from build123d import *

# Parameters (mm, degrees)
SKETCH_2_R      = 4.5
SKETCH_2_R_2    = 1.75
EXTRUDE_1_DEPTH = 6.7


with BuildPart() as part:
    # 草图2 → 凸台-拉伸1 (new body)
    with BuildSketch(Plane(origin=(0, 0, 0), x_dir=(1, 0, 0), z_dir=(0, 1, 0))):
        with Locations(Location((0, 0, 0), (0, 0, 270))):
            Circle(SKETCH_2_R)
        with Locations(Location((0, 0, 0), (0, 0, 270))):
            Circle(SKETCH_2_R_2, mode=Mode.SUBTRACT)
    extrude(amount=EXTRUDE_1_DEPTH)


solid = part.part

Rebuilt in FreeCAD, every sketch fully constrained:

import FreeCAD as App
import Part
import Sketcher
from FreeCAD import Vector

doc = App.newDocument("Part")
body = doc.addObject("PartDesign::Body", "Body")

# Sketch on XZ plane
sketch1 = body.newObject("Sketcher::SketchObject", "Sketch")
sketch1.AttachmentSupport = (doc.getObject("XZ_Plane"), [""])
sketch1.MapMode = "FlatFace"
sketch1.addGeometry([
    Part.Circle(Vector(0, 0, 0), Vector(0, 0, 1), 4.5),
    Part.Circle(Vector(0, 0, 0), Vector(0, 0, 1), 1.75),
], False)
sketch1.addConstraint([
    Sketcher.Constraint("Coincident", 0, 3, -1, 1),
    Sketcher.Constraint("Coincident", 1, 3, -1, 1),
    Sketcher.Constraint("Diameter", 0, 9.0),
    Sketcher.Constraint("Diameter", 1, 3.5),
])
pad1 = body.newObject("PartDesign::Pad", "Pad")
pad1.Profile = sketch1
pad1.Length = 6.7
pad1.Reversed = True

doc.recompute()
